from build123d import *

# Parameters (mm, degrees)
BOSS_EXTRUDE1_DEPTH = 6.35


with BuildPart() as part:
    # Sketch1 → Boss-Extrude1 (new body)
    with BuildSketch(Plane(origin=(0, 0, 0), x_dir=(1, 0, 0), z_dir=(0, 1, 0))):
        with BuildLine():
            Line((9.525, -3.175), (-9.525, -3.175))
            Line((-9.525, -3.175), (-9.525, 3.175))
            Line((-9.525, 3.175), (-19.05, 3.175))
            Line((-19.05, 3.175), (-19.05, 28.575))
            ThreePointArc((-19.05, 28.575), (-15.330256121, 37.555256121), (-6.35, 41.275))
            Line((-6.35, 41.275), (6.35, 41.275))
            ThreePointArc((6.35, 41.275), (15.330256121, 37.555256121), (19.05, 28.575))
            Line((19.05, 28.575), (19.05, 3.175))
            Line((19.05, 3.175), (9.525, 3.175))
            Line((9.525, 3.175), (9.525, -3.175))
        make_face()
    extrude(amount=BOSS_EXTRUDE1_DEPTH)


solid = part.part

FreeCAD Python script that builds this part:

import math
import FreeCAD as App
import Part
import Sketcher
Q = App.Units.Quantity

doc = App.newDocument("Part")
body = doc.addObject("PartDesign::Body", "Body")

# Sketch on XZ plane
sketch1 = doc.addObject("Sketcher::SketchObject", "Sketch")
body.addObject(sketch1)
sketch1.AttachmentSupport = (doc.XZ_Plane, [""])
sketch1.MapMode = "FlatFace"
sketch1.addGeometry(Part.LineSegment(App.Vector(-10, 3, 0), App.Vector(10, 3, 0)), False)
sketch1.addGeometry(Part.LineSegment(App.Vector(10, 3, 0), App.Vector(10, -3, 0)), False)
sketch1.addGeometry(Part.LineSegment(App.Vector(10, -3, 0), App.Vector(19, -3, 0)), False)
sketch1.addGeometry(Part.LineSegment(App.Vector(19, -3, 0), App.Vector(19, -29, 0)), False)
sketch1.addGeometry(Part.ArcOfCircle(Part.Circle(App.Vector(6, -29, 0), App.Vector(0, 0, 1), 13), math.radians(-90), math.radians(0)), False)
sketch1.addGeometry(Part.LineSegment(App.Vector(6, -41, 0), App.Vector(-6, -41, 0)), False)
sketch1.addGeometry(Part.ArcOfCircle(Part.Circle(App.Vector(-6, -29, 0), App.Vector(0, 0, 1), 13), math.radians(180), math.radians(270)), False)
sketch1.addGeometry(Part.LineSegment(App.Vector(-19, -29, 0), App.Vector(-19, -3, 0)), False)
sketch1.addGeometry(Part.LineSegment(App.Vector(-19, -3, 0), App.Vector(-10, -3, 0)), False)
sketch1.addGeometry(Part.LineSegment(App.Vector(-10, -3, 0), App.Vector(-10, 3, 0)), False)
sketch1.addConstraint(Sketcher.Constraint("Coincident", 0, 2, 1, 1))
sketch1.addConstraint(Sketcher.Constraint("Coincident", 1, 2, 2, 1))
sketch1.addConstraint(Sketcher.Constraint("Coincident", 2, 2, 3, 1))
sketch1.addConstraint(Sketcher.Constraint("Tangent", 3, 2, 4, 2))
sketch1.addConstraint(Sketcher.Constraint("Tangent", 4, 1, 5, 1))
sketch1.addConstraint(Sketcher.Constraint("Tangent", 5, 2, 6, 2))
sketch1.addConstraint(Sketcher.Constraint("Tangent", 6, 1, 7, 1))
sketch1.addConstraint(Sketcher.Constraint("Coincident", 7, 2, 8, 1))
sketch1.addConstraint(Sketcher.Constraint("Coincident", 8, 2, 9, 1))
sketch1.addConstraint(Sketcher.Constraint("Coincident", 9, 2, 0, 1))
sketch1.addConstraint(Sketcher.Constraint("Horizontal", 0))
sketch1.addConstraint(Sketcher.Constraint("Vertical", 1))
sketch1.addConstraint(Sketcher.Constraint("Horizontal", 2))
sketch1.addConstraint(Sketcher.Constraint("Vertical", 3))
sketch1.addConstraint(Sketcher.Constraint("Horizontal", 5))
sketch1.addConstraint(Sketcher.Constraint("Vertical", 7))
sketch1.addConstraint(Sketcher.Constraint("Horizontal", 8))
sketch1.addConstraint(Sketcher.Constraint("Vertical", 9))
sketch1.addConstraint(Sketcher.Constraint("Equal", 4, 6))
sketch1.addConstraint(Sketcher.Constraint("Symmetric", 0, 2, 8, 2, -1, 1))
sketch1.addConstraint(Sketcher.Constraint("Symmetric", 2, 2, 7, 2, -2))
sketch1.addConstraint(Sketcher.Constraint("Radius", 4, Q("0.5 in")))
sketch1.addConstraint(Sketcher.Constraint("DistanceY", 3, 2, 3, 1, Q("1 in")))
sketch1.addConstraint(Sketcher.Constraint("DistanceX", 5, 2, 5, 1, Q("0.5 in")))
sketch1.addConstraint(Sketcher.Constraint("DistanceX", 0, 1, 0, 2, Q("0.75 in")))
sketch1.addConstraint(Sketcher.Constraint("DistanceY", 1, 2, 1, 1, Q("0.25 in")))
pad1 = doc.addObject("PartDesign::Pad", "Pad")
body.addObject(pad1)
pad1.Profile = sketch1
pad1.Length = Q("0.25 in")
pad1.Reversed = True

doc.recompute()
